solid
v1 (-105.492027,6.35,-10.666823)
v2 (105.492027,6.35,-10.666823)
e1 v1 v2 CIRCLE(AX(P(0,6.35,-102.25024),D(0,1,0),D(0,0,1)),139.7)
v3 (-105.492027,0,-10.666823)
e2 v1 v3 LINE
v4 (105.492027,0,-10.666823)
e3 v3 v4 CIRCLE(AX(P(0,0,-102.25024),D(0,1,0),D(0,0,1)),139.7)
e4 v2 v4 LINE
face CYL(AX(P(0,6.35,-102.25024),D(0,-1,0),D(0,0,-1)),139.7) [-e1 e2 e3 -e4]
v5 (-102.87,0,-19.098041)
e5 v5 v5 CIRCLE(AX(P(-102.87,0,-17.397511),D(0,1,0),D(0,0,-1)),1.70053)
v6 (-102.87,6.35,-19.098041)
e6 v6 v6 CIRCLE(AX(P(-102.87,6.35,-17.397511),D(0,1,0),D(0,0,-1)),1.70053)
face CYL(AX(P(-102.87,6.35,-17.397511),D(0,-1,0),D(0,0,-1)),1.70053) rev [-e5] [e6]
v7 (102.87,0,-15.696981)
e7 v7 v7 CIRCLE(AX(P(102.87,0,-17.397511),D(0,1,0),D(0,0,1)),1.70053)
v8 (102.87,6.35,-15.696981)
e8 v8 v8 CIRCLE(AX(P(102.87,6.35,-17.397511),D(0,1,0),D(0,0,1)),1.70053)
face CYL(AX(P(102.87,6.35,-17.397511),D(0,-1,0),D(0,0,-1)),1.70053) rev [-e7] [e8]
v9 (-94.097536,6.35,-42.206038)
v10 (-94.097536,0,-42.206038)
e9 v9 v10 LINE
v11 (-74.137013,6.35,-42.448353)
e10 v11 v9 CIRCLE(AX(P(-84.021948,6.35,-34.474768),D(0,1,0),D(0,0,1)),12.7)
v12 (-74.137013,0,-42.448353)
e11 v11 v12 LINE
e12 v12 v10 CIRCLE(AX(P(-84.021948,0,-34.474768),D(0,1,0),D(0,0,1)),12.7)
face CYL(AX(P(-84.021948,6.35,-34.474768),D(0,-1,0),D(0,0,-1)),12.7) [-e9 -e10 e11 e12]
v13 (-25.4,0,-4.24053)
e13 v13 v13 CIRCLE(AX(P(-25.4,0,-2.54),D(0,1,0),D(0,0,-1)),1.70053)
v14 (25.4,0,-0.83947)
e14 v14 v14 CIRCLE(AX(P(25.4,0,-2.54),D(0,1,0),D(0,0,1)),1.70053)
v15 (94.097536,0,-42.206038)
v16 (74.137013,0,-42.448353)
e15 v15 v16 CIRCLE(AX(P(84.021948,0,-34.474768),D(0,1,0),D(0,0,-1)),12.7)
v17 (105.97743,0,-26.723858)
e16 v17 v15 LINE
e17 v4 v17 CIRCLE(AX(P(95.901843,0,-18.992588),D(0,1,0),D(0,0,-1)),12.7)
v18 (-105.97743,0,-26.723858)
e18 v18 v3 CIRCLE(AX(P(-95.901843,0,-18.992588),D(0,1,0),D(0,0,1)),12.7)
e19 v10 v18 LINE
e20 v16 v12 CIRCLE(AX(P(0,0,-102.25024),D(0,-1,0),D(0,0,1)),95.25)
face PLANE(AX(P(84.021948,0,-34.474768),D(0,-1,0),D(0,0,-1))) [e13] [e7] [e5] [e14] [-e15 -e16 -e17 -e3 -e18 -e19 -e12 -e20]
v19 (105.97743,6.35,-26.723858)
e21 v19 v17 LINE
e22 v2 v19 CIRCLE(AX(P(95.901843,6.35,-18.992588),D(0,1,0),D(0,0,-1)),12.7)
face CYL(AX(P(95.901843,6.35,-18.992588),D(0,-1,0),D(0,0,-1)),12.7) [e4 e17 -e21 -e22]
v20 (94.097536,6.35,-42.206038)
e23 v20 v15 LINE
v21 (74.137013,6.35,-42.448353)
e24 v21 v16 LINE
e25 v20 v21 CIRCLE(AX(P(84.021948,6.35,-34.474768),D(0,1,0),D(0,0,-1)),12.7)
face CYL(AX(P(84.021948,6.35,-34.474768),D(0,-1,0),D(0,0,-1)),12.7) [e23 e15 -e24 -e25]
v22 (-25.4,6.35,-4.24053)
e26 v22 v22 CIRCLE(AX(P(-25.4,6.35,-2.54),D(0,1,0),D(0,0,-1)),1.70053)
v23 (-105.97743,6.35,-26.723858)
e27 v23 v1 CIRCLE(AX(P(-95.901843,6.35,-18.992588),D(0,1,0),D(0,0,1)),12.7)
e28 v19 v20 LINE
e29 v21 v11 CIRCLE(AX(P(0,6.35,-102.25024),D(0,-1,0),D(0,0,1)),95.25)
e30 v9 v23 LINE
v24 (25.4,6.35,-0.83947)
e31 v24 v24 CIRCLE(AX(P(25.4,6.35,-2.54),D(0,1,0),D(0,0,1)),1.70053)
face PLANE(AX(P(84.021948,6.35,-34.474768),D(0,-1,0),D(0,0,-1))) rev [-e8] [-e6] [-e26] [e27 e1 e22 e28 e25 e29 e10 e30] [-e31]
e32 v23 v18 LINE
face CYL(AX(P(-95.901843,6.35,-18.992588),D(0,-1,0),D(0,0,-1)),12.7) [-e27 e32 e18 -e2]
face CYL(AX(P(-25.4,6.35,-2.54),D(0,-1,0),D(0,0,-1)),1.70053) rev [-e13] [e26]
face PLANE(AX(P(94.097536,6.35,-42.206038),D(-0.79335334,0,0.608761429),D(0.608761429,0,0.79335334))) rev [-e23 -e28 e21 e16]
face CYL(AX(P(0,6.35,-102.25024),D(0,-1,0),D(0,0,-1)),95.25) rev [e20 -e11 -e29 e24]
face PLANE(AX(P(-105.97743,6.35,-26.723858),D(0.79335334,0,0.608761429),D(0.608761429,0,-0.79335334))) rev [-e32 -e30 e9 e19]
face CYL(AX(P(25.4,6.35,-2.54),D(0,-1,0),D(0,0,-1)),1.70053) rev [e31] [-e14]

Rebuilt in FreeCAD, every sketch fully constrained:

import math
import FreeCAD as App
import Part
import Sketcher
from FreeCAD import Vector
Q = App.Units.Quantity

doc = App.newDocument("Part")
params = doc.addObject("Spreadsheet::Sheet", "Params")
for row, (alias, value) in enumerate([
    ("sketch1_radius", "0.5 in"),
    ("sketch1_radius2", "5.5 in"),
    ("sketch1_radius3", "3.75 in"),
    ("pad1_length", "0.25 in"),
], start=1):
    params.set(f"A{row}", alias)
    params.set(f"B{row}", "=" + value)
    params.setAlias(f"B{row}", alias)

body = doc.addObject("PartDesign::Body", "Body")

# Sketch on XZ plane
sketch1 = doc.addObject("Sketcher::SketchObject", "Sketch")
body.addObject(sketch1)
sketch1.AttachmentSupport = (doc.XZ_Plane, [""])
sketch1.MapMode = "FlatFace"
sketch1.addGeometry([
    Part.LineSegment(Vector(-94.097536, -42.206038, 0), Vector(-105.97743, -26.723858, 0)),  # 0
    Part.ArcOfCircle(Part.Circle(Vector(-95.901843, -18.992588, 0), Vector(0, 0, 1), 12.7), math.radians(139.036959), math.radians(217.5)),  # 1
    Part.ArcOfCircle(Part.Circle(Vector(0, -102.25024, 0), Vector(0, 0, 1), 139.7), math.radians(40.963041), math.radians(139.036959)),  # 2
    Part.ArcOfCircle(Part.Circle(Vector(95.901843, -18.992588, 0), Vector(0, 0, 1), 12.7), math.radians(-37.5), math.radians(40.963041)),  # 3
    Part.LineSegment(Vector(105.97743, -26.723858, 0), Vector(94.097536, -42.206038, 0)),  # 4
    Part.ArcOfCircle(Part.Circle(Vector(84.021948, -34.474768, 0), Vector(0, 0, 1), 12.7), math.radians(-141.108961), math.radians(-37.5)),  # 5
    Part.ArcOfCircle(Part.Circle(Vector(0, -102.25024, 0), Vector(0, 0, 1), 95.25), math.radians(38.891039), math.radians(141.108961)),  # 6
    Part.ArcOfCircle(Part.Circle(Vector(-84.021948, -34.474768, 0), Vector(0, 0, 1), 12.7), math.radians(-142.5), math.radians(-38.891039)),  # 7
    Part.Circle(Vector(25.4, -2.54, 0), Vector(0, 0, 1), 1.70053),  # 8
    Part.Circle(Vector(-25.4, -2.54, 0), Vector(0, 0, 1), 1.70053),  # 9
    Part.Circle(Vector(102.87, -17.397511, 0), Vector(0, 0, 1), 1.70053),  # 10
    Part.Circle(Vector(-102.87, -17.397511, 0), Vector(0, 0, 1), 1.70053),  # 11
], False)
sketch1.addConstraint([
    Sketcher.Constraint("Tangent", 0, 2, 1, 2),
    Sketcher.Constraint("Tangent", 1, 1, 2, 2),
    Sketcher.Constraint("Tangent", 2, 1, 3, 2),
    Sketcher.Constraint("Tangent", 3, 1, 4, 1),
    Sketcher.Constraint("Tangent", 4, 2, 5, 2),
    Sketcher.Constraint("Tangent", 5, 1, 6, 1),
    Sketcher.Constraint("Tangent", 6, 2, 7, 2),
    Sketcher.Constraint("Tangent", 7, 1, 0, 1),
    Sketcher.Constraint("Coincident", 6, 3, 2, 3),
    Sketcher.Constraint("Equal", 1, 3),
    Sketcher.Constraint("Equal", 3, 5),
    Sketcher.Constraint("Equal", 5, 7),
    Sketcher.Constraint("Equal", 8, 9),
    Sketcher.Constraint("Equal", 9, 10),
    Sketcher.Constraint("Equal", 10, 11),
    Sketcher.Constraint("Symmetric", 1, 3, 3, 3, -2),
    Sketcher.Constraint("Symmetric", 8, 3, 9, 3, -2),
    Sketcher.Constraint("Symmetric", 10, 3, 11, 3, -2),
    Sketcher.Constraint("Horizontal", 5, 3, 7, 3),
    Sketcher.Constraint("Radius", 1, Q("0.5 in")),
    Sketcher.Constraint("Radius", 2, Q("5.5 in")),
    Sketcher.Constraint("Radius", 6, Q("3.75 in")),
    Sketcher.Constraint("DistanceX", -1, 1, 8, 3, Q("1 in")),
    Sketcher.Constraint("Diameter", 8, Q("0.1339 in")),
    Sketcher.Constraint("DistanceY", 8, 3, -1, 1, Q("0.1 in")),
    Sketcher.Constraint("Angle", 0, Q("127.5 deg")),
    Sketcher.Constraint("DistanceX", -1, 1, 10, 3, Q("4.05 in")),
    Sketcher.Constraint("DistanceY", 2, 3, -1, 1, Q("4.0256 in")),
    Sketcher.Constraint("Distance", 0, 19.51486),
    Sketcher.Constraint("DistanceY", 10, 3, -1, 1, 17.397511),
])
sketch1.setExpression("Constraints[19]", "Params.sketch1_radius")
sketch1.setExpression("Constraints[20]", "Params.sketch1_radius2")
sketch1.setExpression("Constraints[21]", "Params.sketch1_radius3")
pad1 = doc.addObject("PartDesign::Pad", "Pad")
body.addObject(pad1)
pad1.Profile = sketch1
pad1.setExpression("Length", "Params.pad1_length")
pad1.Reversed = True

doc.recompute()
